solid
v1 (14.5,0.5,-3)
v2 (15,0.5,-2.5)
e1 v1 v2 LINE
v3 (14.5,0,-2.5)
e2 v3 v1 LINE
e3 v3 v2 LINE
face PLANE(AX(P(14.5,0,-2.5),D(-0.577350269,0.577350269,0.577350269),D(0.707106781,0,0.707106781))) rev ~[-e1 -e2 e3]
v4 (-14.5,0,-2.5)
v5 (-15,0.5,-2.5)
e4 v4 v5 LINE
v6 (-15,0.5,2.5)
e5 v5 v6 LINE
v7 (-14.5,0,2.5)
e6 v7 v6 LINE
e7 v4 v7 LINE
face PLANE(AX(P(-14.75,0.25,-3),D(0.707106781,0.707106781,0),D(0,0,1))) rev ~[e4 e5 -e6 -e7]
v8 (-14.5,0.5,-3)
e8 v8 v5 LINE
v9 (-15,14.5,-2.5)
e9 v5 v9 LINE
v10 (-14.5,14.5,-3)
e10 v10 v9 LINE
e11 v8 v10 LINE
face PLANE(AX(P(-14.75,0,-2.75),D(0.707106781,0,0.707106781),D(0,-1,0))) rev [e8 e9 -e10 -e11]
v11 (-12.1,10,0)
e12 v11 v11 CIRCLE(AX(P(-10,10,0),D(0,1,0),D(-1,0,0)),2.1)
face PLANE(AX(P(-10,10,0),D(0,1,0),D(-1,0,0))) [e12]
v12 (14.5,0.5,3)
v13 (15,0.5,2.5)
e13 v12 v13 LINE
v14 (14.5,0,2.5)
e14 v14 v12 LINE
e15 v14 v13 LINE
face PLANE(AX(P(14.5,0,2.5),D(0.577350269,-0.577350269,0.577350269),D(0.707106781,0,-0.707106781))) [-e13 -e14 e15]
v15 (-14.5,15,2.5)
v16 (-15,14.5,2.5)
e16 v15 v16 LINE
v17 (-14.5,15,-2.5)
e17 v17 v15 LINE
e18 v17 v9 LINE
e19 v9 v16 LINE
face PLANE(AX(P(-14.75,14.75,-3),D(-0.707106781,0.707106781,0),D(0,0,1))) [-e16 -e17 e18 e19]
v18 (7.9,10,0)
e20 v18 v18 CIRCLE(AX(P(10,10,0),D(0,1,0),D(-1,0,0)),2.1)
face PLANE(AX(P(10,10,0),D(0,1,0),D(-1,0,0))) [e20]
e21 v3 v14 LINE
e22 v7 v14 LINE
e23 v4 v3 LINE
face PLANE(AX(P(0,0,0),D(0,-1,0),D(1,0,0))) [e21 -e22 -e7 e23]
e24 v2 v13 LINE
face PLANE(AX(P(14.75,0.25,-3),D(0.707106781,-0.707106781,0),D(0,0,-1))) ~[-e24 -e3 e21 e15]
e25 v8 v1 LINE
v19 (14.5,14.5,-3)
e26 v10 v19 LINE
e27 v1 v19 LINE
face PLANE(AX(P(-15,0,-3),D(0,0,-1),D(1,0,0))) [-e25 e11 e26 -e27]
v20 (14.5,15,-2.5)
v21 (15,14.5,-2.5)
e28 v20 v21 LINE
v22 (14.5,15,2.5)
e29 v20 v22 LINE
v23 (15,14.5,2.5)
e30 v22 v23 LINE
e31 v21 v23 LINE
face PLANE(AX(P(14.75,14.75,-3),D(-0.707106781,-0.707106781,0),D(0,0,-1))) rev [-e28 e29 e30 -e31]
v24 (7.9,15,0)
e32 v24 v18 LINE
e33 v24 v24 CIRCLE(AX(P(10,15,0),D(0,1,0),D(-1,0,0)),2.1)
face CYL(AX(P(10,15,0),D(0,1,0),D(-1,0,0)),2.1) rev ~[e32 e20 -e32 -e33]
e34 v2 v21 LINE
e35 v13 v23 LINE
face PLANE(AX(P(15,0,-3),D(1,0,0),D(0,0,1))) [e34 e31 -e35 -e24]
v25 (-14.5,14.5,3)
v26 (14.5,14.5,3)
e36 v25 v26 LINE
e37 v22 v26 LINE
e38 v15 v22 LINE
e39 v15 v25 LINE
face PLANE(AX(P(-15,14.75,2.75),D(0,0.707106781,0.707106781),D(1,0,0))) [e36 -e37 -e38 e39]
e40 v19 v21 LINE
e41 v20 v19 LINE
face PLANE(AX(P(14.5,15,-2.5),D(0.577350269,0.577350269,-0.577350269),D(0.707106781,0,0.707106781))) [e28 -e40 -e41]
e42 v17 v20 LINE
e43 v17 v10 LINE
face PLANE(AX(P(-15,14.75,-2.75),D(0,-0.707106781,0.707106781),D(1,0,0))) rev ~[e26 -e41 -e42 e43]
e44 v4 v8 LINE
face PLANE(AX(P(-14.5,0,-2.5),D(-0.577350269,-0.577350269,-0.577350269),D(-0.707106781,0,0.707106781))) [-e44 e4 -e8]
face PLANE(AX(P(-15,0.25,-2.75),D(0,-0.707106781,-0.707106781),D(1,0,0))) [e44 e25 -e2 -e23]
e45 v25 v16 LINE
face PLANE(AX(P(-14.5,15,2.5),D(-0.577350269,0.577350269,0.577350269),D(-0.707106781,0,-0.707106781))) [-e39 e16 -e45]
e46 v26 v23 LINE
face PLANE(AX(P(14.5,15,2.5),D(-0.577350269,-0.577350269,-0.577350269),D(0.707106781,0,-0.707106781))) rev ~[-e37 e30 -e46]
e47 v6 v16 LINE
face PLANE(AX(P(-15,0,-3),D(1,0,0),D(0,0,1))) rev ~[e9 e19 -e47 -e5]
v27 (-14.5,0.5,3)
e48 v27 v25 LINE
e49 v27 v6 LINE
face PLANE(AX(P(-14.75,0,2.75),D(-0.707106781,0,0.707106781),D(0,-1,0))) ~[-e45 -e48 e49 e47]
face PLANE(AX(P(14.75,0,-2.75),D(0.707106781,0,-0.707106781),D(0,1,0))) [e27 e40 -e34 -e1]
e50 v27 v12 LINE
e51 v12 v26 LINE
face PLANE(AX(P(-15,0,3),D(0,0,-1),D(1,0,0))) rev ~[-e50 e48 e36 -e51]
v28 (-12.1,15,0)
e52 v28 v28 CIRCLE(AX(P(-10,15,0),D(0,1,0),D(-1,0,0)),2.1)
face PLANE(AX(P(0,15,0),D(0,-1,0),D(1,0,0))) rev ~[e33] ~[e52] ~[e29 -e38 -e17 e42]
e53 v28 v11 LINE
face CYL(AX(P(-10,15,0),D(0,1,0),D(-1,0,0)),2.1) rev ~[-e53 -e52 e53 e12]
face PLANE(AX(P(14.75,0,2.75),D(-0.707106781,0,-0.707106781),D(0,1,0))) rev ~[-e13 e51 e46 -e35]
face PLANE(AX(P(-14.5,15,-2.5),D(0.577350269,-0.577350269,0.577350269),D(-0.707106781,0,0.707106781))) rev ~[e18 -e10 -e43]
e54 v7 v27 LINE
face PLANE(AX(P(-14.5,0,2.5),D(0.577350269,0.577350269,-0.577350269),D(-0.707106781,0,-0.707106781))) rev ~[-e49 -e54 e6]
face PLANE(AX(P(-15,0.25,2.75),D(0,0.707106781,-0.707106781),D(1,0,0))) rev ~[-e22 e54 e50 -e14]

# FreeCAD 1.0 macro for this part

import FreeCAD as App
import Part
import Sketcher
from FreeCAD import Vector


def edges_at(feature, points):
    """Names of the edges that pass closest to the given points."""
    edges = feature.Shape.Edges
    near = lambda p: min(range(len(edges)), key=lambda i: edges[i].distToShape(Part.Vertex(*p))[0])
    return sorted({f"Edge{near(p) + 1}" for p in points})


def add_polygon(sketch, points):
    """Adds a closed chain of lines whose ends are joined by coincident constraints."""
    first, n = sketch.GeometryCount, len(points)
    for a, b in zip(points, points[1:] + points[:1]):
        sketch.addGeometry(Part.LineSegment(App.Vector(*a, 0), App.Vector(*b, 0)), False)
    for i in range(n):
        sketch.addConstraint(Sketcher.Constraint("Coincident", first + i, 2, first + (i + 1) % n, 1))

doc = App.newDocument("Part")
body = doc.addObject("PartDesign::Body", "Body")

sketch1 = body.newObject("Sketcher::SketchObject", "Sketch")
sketch1.AttachmentSupport = (doc.getObject("XZ_Plane"), [""])
sketch1.MapMode = "FlatFace"
add_polygon(sketch1, [(-15, 3), (-15, -3), (15, -3), (15, 3)])
sketch1.addConstraint(Sketcher.Constraint("Vertical", 0))
sketch1.addConstraint(Sketcher.Constraint("Horizontal", 1))
sketch1.addConstraint(Sketcher.Constraint("Vertical", 2))
sketch1.addConstraint(Sketcher.Constraint("Horizontal", 3))
sketch1.addConstraint(Sketcher.Constraint("Symmetric", 0, 2, 2, 2, -1, 1))
sketch1.addConstraint(Sketcher.Constraint("DistanceX", 1, 1, 1, 2, 30.0))
sketch1.addConstraint(Sketcher.Constraint("DistanceY", 0, 2, 0, 1, 6.0))
pad1 = body.newObject("PartDesign::Pad", "Pad")
pad1.Profile = sketch1
pad1.Length = 15
pad1.Reversed = True

sketch2 = body.newObject("Sketcher::SketchObject", "Sketch001")
sketch2.AttachmentSupport = (doc.getObject("XZ_Plane"), [""])
sketch2.MapMode = "FlatFace"
sketch2.AttachmentOffset = App.Placement(Vector(0, 0, -15), App.Rotation())
sketch2.addGeometry(Part.Circle(Vector(10, 0, 0), Vector(0, 0, 1), 2.1), False)
sketch2.addGeometry(Part.Circle(Vector(-10, 0, 0), Vector(0, 0, 1), 2.1), False)
sketch2.addConstraint(Sketcher.Constraint("Equal", 0, 1))
sketch2.addConstraint(Sketcher.Constraint("Symmetric", 0, 3, 1, 3, -1, 1))
sketch2.addConstraint(Sketcher.Constraint("PointOnObject", 0, 3, -1))
sketch2.addConstraint(Sketcher.Constraint("Diameter", 0, 4.2))
sketch2.addConstraint(Sketcher.Constraint("DistanceX", -1, 1, 0, 3, 10.0))
pocket1 = body.newObject("PartDesign::Pocket", "Pocket")
pocket1.Profile = sketch2
pocket1.Length = 5
pocket1.Reversed = True
doc.recompute()

chamfer = body.newObject("PartDesign::Chamfer", "Chamfer")
chamfer.Base = (pocket1, edges_at(pocket1, [
    (15, 7.5, 3),
    (-15, 7.5, 3),
    (0, 0, 3),
    (0, 15, 3),
    (-15, 7.5, -3),
    (15, 7.5, -3),
    (0, 0, -3),
    (0, 15, -3),
    (15, 0, 0),
    (15, 15, 0),
    (-15, 0, 0),
    (-15, 15, 0),
]))
chamfer.Size = 0.5

doc.recompute()
